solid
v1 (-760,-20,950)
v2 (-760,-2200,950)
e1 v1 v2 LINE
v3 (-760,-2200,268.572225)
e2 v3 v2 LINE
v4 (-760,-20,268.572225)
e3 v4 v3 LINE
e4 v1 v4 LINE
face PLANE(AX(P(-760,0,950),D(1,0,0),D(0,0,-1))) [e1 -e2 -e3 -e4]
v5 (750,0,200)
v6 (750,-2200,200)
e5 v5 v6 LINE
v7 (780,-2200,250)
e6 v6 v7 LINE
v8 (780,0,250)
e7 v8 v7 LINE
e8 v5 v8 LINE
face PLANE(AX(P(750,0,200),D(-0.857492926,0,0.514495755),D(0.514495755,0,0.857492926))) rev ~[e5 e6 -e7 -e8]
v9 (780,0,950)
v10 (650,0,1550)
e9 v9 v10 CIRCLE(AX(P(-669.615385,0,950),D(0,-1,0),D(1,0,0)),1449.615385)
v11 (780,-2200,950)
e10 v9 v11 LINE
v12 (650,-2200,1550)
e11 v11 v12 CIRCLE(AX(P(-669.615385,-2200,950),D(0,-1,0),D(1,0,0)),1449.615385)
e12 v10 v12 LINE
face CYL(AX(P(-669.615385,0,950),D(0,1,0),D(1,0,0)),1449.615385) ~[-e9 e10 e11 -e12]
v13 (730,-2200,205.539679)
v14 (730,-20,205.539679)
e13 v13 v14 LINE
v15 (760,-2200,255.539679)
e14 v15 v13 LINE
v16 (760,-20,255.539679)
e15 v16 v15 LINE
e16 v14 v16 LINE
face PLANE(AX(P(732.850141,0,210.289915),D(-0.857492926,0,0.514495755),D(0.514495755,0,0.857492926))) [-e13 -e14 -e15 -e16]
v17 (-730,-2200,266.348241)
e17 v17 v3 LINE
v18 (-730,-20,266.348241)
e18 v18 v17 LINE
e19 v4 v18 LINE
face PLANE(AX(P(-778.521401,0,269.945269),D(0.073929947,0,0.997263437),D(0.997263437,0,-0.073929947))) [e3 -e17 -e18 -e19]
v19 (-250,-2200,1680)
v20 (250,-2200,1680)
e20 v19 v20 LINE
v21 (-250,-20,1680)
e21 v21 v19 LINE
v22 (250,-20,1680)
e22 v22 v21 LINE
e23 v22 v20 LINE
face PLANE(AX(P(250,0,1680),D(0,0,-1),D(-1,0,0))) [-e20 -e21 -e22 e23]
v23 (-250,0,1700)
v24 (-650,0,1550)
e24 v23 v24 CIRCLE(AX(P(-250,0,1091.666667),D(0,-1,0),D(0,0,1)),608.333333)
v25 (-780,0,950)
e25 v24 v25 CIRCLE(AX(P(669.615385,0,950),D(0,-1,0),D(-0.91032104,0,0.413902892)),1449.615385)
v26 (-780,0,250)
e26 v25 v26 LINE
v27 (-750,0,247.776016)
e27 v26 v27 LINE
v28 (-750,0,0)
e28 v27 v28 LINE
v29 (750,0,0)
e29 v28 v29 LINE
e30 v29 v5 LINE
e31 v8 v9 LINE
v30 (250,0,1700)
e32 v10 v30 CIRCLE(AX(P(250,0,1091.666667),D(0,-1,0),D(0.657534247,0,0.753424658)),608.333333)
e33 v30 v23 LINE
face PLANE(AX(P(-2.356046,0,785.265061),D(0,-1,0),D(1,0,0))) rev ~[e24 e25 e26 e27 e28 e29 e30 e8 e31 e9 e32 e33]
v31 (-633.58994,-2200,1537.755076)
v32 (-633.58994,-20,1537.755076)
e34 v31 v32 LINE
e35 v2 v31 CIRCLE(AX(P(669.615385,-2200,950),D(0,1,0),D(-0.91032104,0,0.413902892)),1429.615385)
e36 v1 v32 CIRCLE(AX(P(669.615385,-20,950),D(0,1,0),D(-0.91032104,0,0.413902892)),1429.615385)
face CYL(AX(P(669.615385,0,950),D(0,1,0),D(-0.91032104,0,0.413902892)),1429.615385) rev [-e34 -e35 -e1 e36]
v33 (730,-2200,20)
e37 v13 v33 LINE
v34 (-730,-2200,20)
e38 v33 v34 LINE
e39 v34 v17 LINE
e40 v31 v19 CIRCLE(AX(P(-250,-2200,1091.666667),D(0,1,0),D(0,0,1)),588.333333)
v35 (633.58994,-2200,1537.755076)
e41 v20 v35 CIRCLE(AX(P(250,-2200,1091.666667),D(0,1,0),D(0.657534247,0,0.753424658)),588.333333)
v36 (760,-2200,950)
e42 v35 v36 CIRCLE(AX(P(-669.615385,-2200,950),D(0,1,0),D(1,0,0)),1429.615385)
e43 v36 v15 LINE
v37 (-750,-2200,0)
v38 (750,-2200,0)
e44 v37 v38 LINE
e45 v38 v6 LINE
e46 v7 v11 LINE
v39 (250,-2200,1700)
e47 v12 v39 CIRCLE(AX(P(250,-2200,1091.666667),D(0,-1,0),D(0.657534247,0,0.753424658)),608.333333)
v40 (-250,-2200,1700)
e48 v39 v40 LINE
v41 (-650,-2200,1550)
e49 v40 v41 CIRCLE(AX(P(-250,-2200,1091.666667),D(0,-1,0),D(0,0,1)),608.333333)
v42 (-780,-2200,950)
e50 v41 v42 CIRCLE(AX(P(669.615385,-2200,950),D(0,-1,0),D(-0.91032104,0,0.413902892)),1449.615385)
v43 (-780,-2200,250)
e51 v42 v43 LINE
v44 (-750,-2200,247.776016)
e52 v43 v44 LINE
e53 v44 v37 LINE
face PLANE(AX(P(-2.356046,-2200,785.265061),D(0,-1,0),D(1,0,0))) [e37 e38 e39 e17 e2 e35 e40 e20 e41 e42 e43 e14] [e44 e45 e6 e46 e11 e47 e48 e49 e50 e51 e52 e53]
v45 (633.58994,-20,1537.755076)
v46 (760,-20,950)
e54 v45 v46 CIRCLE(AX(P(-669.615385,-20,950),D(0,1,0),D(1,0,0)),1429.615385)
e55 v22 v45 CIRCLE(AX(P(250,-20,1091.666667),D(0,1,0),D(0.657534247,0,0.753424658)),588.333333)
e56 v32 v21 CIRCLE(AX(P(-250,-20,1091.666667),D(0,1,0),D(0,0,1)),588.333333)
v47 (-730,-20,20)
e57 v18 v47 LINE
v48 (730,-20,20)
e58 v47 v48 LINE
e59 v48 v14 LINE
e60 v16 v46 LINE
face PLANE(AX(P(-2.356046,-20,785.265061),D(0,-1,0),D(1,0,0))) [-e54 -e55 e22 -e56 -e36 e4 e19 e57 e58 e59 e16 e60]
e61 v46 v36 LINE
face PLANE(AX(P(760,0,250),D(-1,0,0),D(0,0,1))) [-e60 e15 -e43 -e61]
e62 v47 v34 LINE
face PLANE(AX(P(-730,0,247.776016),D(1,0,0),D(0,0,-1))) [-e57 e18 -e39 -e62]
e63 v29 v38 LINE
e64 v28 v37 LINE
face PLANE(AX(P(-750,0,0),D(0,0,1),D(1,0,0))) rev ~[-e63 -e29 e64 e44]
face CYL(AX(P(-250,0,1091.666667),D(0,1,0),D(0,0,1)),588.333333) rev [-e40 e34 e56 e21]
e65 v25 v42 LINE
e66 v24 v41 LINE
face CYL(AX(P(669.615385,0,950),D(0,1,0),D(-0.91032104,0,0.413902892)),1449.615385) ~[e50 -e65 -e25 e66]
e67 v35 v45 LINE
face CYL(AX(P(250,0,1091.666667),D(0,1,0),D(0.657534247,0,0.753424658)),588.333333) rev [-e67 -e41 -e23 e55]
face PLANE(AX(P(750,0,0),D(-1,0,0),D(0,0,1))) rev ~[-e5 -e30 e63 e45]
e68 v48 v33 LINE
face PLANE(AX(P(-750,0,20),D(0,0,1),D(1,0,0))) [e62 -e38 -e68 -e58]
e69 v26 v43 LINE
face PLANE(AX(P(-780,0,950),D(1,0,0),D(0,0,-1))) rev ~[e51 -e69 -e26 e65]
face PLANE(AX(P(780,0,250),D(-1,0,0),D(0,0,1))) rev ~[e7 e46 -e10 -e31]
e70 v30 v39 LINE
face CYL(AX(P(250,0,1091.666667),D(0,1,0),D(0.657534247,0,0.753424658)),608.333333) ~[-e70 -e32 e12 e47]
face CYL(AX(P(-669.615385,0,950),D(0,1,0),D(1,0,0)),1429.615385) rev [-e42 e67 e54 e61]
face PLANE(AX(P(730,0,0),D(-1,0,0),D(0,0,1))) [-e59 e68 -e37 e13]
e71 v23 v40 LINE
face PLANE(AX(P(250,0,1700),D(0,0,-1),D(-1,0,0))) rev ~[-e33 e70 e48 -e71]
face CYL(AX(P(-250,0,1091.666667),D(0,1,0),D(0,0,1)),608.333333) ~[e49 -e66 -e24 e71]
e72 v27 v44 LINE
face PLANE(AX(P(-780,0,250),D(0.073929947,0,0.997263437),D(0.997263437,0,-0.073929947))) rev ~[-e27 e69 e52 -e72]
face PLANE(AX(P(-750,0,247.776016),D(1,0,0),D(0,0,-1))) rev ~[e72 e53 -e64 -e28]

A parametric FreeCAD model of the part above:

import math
import FreeCAD as App
import Part
import Sketcher

V = App.Vector
Q = App.Units.Quantity


def faces_at(feature, points):
    """Names of the faces that lie closest to the given points."""
    faces = feature.Shape.Faces
    near = lambda p: min(range(len(faces)), key=lambda i: faces[i].distToShape(Part.Vertex(*p))[0])
    return sorted({f"Face{near(p) + 1}" for p in points})

doc = App.newDocument("Part")
body = doc.addObject("PartDesign::Body", "Body")

# Sketch on XZ plane
sketch1 = body.newObject("Sketcher::SketchObject", "Sketch")
sketch1.AttachmentSupport = (doc.getObject("XZ_Plane"), [""])
sketch1.MapMode = "FlatFace"
sketch1.addGeometry([
    Part.LineSegment(V(-750, 247.776016, 0), V(-750, 0, 0)),  # 0
    Part.LineSegment(V(-750, 0, 0), V(750, 0, 0)),  # 1
    Part.LineSegment(V(750, 0, 0), V(750, 200, 0)),  # 2
    Part.LineSegment(V(750, 200, 0), V(780, 250, 0)),  # 3
    Part.LineSegment(V(780, 250, 0), V(780, 950, 0)),  # 4
    Part.ArcOfCircle(Part.Circle(V(-669.615385, 950, 0), V(0, 0, 1), 1449.615385), math.radians(0), math.radians(24.450245)),  # 5
    Part.ArcOfCircle(Part.Circle(V(250, 1091.666667, 0), V(0, 0, 1), 608.333333), math.radians(48.88791), math.radians(90)),  # 6
    Part.LineSegment(V(250, 1700, 0), V(-250, 1700, 0)),  # 7
    Part.ArcOfCircle(Part.Circle(V(-250, 1091.666667, 0), V(0, 0, 1), 608.333333), math.radians(90), math.radians(131.11209)),  # 8
    Part.ArcOfCircle(Part.Circle(V(669.615385, 950, 0), V(0, 0, 1), 1449.615385), math.radians(155.549755), math.radians(180)),  # 9
    Part.LineSegment(V(-780, 950, 0), V(-780, 250, 0)),  # 10
    Part.LineSegment(V(-780, 250, 0), V(-750, 247.776016, 0)),  # 11
], False)
sketch1.addConstraint([
    Sketcher.Constraint("Coincident", 0, 2, 1, 1),
    Sketcher.Constraint("Coincident", 1, 2, 2, 1),
    Sketcher.Constraint("Coincident", 2, 2, 3, 1),
    Sketcher.Constraint("Coincident", 3, 2, 4, 1),
    Sketcher.Constraint("Coincident", 4, 2, 5, 1),
    Sketcher.Constraint("Coincident", 5, 2, 6, 1),
    Sketcher.Constraint("Tangent", 6, 2, 7, 1),
    Sketcher.Constraint("Tangent", 7, 2, 8, 1),
    Sketcher.Constraint("Coincident", 8, 2, 9, 1),
    Sketcher.Constraint("Tangent", 9, 2, 10, 1),
    Sketcher.Constraint("Coincident", 10, 2, 11, 1),
    Sketcher.Constraint("Coincident", 11, 2, 0, 1),
    Sketcher.Constraint("Vertical", 0),
    Sketcher.Constraint("Horizontal", 1),
    Sketcher.Constraint("Vertical", 2),
    Sketcher.Constraint("Vertical", 4),
    Sketcher.Constraint("Horizontal", 7),
    Sketcher.Constraint("Vertical", 10),
    Sketcher.Constraint("Equal", 6, 8),
    Sketcher.Constraint("Equal", 5, 9),
    Sketcher.Constraint("Symmetric", 0, 2, 1, 2, -1, 1),
    Sketcher.Constraint("Symmetric", 5, 3, 9, 3, -2),
    Sketcher.Constraint("Horizontal", 9, 3, 4, 2),
    Sketcher.Constraint("Horizontal", 3, 2, 10, 2),
    Sketcher.Constraint("DistanceX", 1, 1, 1, 2, Q("1500 mm")),
    Sketcher.Constraint("DistanceX", 7, 2, 7, 1, Q("500 mm")),
    Sketcher.Constraint("DistanceY", 2, 1, 2, 2, Q("200 mm")),
    Sketcher.Constraint("DistanceY", 4, 1, 4, 2, Q("700 mm")),
    Sketcher.Constraint("DistanceY", -1, 1, 5, 3, Q("950 mm")),
    Sketcher.Constraint("DistanceX", -1, 1, 6, 3, Q("250 mm")),
    Sketcher.Constraint("DistanceX", -1, 1, 3, 2, Q("780 mm")),
    Sketcher.Constraint("DistanceY", -1, 1, 6, 2, Q("1700 mm")),
    Sketcher.Constraint("Radius", 5, Q("1449.615385 mm")),
    Sketcher.Constraint("Radius", 6, Q("608.333333 mm")),
    Sketcher.Constraint("DistanceY", 0, 2, 0, 1, Q("247.776016 mm")),
])
pad1 = body.newObject("PartDesign::Pad", "Pad")
pad1.Profile = sketch1
pad1.Length = 2200
doc.recompute()

thickness = body.newObject("PartDesign::Thickness", "Thickness")
thickness.Base = (pad1, faces_at(pad1, [(0, -2200, 850)]))
thickness.Value = 20
thickness.Reversed = True
thickness.Join = "Intersection"

doc.recompute()
